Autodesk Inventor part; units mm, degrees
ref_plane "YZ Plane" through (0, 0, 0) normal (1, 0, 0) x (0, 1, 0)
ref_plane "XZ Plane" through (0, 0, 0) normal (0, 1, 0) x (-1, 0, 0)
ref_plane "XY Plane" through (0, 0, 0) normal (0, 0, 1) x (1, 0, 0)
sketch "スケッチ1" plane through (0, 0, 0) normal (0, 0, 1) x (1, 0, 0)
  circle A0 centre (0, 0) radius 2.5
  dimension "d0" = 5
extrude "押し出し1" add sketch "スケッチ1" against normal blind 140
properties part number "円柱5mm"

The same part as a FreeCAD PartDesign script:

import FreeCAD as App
import Part
import Sketcher

V = App.Vector
Q = App.Units.Quantity

doc = App.newDocument("Part")
body = doc.addObject("PartDesign::Body", "Body")

# Sketch on XY plane
sketch1 = body.newObject("Sketcher::SketchObject", "Sketch")
sketch1.AttachmentSupport = (doc.getObject("XY_Plane"), [""])
sketch1.MapMode = "FlatFace"
sketch1.addGeometry(Part.Circle(V(0, 0, 0), V(0, 0, 1), 2.5), False)
sketch1.addConstraint(Sketcher.Constraint("Coincident", 0, 3, -1, 1))
sketch1.addConstraint(Sketcher.Constraint("Diameter", 0, Q("5 mm")))
pad1 = body.newObject("PartDesign::Pad", "Pad")
pad1.Profile = sketch1
pad1.Length = 140
pad1.Reversed = True

doc.recompute()
